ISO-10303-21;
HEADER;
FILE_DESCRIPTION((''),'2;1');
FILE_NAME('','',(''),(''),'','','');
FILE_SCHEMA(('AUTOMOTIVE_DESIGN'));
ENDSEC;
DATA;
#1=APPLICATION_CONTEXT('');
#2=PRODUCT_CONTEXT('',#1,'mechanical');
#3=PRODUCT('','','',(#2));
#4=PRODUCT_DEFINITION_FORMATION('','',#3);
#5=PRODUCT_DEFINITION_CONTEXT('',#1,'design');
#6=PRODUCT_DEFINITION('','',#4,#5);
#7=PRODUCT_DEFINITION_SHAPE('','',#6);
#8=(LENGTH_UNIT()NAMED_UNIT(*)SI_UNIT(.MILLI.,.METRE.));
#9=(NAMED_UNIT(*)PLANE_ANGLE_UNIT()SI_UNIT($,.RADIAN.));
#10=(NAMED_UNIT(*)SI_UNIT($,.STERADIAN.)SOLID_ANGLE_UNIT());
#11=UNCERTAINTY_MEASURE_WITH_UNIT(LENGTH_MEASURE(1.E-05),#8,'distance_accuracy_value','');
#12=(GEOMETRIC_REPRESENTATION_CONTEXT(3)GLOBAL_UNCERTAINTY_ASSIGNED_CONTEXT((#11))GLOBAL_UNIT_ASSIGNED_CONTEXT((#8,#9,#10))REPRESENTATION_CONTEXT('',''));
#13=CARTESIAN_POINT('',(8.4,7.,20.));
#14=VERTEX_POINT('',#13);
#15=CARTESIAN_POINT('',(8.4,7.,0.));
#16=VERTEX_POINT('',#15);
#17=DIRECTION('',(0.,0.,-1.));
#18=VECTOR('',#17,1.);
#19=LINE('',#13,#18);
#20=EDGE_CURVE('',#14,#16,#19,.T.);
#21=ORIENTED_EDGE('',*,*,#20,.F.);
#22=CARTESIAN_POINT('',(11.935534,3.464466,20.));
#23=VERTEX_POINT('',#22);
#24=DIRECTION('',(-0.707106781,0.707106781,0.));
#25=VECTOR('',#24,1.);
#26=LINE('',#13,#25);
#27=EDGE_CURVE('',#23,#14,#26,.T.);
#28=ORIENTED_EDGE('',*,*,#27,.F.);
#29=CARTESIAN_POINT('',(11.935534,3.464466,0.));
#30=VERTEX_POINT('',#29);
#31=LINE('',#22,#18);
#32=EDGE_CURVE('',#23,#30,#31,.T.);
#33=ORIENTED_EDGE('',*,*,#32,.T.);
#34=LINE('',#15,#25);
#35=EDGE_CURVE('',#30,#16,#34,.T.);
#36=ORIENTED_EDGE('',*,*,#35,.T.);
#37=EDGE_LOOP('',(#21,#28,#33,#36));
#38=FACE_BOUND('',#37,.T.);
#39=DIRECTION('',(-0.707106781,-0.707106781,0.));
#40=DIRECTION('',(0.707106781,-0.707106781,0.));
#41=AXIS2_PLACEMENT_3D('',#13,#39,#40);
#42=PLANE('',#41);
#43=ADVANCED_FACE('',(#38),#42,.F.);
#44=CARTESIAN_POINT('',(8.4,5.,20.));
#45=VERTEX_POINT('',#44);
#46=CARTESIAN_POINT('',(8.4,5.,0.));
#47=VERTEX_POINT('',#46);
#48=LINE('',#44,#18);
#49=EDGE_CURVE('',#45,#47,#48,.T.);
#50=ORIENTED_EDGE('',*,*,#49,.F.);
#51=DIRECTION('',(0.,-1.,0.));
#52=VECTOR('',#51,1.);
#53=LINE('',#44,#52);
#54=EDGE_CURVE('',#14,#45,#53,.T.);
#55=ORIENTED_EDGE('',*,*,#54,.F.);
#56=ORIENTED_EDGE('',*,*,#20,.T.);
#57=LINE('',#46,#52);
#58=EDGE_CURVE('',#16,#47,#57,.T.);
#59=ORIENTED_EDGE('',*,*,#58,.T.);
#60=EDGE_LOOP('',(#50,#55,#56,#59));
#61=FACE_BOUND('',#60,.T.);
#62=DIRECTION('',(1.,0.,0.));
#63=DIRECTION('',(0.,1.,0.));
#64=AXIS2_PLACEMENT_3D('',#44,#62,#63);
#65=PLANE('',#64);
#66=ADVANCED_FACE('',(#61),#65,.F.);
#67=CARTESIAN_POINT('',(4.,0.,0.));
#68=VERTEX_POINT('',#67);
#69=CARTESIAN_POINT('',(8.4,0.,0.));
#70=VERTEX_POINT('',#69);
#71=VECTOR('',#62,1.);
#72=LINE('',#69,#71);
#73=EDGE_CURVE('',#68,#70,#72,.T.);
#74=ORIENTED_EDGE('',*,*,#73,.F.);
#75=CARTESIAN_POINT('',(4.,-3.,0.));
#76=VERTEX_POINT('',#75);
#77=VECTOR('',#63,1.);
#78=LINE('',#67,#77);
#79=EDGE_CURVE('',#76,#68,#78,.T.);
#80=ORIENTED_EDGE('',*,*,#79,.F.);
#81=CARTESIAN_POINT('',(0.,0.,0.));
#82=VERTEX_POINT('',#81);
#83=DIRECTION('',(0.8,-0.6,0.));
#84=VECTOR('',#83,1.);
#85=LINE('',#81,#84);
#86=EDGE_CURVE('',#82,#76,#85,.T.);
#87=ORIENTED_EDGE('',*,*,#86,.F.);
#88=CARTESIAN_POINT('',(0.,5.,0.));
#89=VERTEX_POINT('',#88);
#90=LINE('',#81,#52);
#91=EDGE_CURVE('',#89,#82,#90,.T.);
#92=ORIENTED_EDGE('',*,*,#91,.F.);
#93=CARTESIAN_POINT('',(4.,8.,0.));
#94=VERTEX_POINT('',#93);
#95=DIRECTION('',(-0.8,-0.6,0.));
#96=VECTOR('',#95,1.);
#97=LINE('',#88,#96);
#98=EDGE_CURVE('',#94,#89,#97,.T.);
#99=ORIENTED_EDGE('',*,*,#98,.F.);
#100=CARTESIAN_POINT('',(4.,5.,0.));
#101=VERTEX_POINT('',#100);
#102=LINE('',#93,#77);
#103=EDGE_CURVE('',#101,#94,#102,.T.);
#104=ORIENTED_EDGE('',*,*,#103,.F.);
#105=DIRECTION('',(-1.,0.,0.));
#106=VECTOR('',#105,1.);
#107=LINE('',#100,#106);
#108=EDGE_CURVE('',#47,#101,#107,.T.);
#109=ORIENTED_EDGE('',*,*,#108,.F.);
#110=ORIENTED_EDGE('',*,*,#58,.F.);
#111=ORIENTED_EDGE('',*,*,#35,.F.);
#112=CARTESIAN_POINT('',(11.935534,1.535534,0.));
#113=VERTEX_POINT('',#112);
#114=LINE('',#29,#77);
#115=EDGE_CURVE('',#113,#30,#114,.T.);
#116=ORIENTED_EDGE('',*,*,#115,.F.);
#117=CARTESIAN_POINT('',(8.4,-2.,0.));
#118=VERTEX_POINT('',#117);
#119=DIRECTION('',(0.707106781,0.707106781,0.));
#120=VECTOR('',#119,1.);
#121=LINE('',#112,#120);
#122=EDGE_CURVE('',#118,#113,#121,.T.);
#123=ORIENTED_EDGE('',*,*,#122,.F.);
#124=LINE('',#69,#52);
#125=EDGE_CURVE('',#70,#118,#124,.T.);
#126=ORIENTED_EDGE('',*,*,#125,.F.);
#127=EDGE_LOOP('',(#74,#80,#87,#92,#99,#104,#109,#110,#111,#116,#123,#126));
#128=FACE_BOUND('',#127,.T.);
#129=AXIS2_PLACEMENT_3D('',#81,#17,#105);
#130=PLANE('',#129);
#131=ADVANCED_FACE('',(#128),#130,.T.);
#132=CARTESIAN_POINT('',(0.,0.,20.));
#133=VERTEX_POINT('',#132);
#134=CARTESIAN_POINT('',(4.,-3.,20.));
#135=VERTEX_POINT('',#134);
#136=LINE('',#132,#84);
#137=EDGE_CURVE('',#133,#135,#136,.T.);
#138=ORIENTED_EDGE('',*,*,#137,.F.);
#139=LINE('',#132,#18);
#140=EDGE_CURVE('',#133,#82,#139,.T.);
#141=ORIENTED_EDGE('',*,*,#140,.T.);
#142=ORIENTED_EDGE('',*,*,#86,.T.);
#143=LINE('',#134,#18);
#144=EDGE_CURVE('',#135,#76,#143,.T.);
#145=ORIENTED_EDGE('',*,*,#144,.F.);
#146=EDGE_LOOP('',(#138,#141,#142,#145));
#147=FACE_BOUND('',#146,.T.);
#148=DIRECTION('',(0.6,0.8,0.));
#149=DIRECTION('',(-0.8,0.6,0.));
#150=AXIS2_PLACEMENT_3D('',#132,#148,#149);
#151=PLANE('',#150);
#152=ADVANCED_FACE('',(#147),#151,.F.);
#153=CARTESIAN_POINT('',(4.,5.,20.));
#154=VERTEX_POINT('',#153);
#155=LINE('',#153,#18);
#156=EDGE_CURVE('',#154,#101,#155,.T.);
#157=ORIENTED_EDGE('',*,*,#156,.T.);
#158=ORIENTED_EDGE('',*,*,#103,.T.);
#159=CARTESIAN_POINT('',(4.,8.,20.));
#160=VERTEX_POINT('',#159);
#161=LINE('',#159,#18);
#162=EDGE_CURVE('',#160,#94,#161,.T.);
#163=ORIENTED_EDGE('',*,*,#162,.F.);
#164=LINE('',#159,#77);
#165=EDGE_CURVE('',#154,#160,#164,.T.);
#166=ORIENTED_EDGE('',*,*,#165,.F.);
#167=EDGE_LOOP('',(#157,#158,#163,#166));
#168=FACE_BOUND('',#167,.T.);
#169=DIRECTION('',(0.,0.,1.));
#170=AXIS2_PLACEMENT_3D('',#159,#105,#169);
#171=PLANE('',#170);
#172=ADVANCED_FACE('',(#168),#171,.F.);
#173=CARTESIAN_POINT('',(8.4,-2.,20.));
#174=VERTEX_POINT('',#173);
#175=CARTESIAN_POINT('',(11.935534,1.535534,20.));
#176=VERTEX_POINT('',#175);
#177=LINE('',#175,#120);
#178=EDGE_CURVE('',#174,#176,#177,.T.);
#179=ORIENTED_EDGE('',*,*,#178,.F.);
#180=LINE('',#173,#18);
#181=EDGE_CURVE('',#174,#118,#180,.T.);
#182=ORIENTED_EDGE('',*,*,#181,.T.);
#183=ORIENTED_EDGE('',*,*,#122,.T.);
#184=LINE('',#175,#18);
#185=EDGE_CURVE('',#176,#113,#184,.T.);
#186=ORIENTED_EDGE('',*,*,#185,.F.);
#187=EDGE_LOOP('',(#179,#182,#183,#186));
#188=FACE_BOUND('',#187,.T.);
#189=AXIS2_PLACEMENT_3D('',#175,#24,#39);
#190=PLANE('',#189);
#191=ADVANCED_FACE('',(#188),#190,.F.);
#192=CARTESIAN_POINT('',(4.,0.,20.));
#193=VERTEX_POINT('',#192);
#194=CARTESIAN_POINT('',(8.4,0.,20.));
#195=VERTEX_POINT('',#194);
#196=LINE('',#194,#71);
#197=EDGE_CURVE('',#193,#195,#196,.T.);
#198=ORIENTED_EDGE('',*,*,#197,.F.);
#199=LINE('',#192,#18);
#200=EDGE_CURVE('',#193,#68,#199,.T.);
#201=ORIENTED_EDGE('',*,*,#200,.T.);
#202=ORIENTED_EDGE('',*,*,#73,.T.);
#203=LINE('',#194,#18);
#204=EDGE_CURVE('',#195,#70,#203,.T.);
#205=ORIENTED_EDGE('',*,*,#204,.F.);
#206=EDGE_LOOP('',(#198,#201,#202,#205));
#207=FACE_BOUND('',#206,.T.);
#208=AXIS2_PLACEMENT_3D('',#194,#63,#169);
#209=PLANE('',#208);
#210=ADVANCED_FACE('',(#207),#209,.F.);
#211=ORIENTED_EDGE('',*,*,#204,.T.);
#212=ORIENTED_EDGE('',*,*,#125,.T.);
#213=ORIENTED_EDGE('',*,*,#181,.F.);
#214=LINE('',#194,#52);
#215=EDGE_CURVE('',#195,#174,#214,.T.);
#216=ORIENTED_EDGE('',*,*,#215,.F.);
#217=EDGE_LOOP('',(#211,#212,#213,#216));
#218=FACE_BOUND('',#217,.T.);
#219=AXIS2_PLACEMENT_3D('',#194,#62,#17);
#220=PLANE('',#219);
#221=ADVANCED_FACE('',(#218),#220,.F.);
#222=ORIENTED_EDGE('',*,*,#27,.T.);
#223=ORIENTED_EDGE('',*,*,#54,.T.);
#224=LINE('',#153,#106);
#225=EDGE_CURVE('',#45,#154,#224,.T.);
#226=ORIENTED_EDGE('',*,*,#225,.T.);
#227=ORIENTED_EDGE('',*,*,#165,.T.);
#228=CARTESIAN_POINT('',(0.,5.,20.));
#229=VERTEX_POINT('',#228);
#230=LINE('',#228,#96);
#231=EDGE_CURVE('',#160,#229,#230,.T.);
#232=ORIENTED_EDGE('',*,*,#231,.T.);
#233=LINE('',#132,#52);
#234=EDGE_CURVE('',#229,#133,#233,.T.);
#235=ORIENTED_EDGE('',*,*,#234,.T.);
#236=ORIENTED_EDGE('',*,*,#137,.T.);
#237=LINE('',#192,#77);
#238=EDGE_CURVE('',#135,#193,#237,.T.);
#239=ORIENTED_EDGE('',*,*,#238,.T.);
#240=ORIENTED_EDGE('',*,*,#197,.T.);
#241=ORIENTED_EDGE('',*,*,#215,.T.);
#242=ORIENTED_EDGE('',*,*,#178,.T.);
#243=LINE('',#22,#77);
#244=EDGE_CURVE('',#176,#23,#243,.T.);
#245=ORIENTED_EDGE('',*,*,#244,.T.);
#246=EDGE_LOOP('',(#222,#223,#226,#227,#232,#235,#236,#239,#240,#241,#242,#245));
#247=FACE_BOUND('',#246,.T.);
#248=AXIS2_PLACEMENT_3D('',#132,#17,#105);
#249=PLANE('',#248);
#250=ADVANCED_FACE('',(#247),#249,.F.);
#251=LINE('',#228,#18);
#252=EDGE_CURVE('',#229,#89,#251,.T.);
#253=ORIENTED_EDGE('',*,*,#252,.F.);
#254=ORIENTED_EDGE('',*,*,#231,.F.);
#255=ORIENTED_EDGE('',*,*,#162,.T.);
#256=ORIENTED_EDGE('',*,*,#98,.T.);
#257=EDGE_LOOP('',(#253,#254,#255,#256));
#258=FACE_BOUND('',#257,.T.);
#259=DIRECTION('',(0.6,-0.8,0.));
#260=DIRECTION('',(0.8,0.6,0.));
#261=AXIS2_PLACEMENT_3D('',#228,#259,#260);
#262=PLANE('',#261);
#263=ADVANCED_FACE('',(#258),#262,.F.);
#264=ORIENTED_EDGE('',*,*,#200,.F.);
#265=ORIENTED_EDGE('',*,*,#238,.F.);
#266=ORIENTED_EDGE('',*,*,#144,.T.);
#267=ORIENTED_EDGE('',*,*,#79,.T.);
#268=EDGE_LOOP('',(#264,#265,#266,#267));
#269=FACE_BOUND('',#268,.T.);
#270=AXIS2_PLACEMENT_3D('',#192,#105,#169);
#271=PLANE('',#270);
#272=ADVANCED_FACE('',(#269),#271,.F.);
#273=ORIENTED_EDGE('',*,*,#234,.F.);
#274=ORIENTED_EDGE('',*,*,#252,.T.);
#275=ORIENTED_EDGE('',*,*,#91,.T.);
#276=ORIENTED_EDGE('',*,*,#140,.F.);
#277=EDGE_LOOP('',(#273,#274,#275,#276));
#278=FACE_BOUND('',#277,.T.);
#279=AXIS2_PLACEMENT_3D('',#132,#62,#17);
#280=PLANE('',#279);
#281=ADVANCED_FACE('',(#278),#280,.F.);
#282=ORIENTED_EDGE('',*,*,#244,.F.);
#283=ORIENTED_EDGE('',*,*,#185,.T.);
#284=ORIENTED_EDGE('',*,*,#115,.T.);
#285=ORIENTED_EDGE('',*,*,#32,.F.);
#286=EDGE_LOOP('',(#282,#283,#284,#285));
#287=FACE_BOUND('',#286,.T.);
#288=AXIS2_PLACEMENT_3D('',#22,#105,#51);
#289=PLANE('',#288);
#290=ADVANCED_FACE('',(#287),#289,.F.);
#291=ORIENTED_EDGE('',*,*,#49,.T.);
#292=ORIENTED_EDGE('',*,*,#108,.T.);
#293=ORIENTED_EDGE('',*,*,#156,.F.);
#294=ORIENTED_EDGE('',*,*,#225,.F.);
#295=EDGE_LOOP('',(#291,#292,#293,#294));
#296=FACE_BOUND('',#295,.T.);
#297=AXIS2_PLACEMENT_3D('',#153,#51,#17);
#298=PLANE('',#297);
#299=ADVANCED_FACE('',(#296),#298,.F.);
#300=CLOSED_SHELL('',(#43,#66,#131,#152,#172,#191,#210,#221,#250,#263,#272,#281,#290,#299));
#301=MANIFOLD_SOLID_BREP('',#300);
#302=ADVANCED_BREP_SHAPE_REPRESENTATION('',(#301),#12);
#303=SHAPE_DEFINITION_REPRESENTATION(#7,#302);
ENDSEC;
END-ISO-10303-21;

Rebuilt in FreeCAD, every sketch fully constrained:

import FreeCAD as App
import Part
import Sketcher

doc = App.newDocument("Part")
body = doc.addObject("PartDesign::Body", "Body")

# Sketch on XY plane
sketch1 = body.newObject("Sketcher::SketchObject", "Sketch")
sketch1.AttachmentSupport = (doc.getObject("XY_Plane"), [""])
sketch1.MapMode = "FlatFace"
sketch1.addGeometry([
    Part.LineSegment(App.Vector(0, 5, 0), App.Vector(0, 0, 0)),  # 0
    Part.LineSegment(App.Vector(0, 0, 0), App.Vector(4, -3, 0)),  # 1
    Part.LineSegment(App.Vector(4, -3, 0), App.Vector(4, 0, 0)),  # 2
    Part.LineSegment(App.Vector(4, 0, 0), App.Vector(8.4, 0, 0)),  # 3
    Part.LineSegment(App.Vector(8.4, 0, 0), App.Vector(8.4, -2, 0)),  # 4
    Part.LineSegment(App.Vector(8.4, -2, 0), App.Vector(11.9, 1.5, 0)),  # 5
    Part.LineSegment(App.Vector(11.9, 1.5, 0), App.Vector(11.9, 3.5, 0)),  # 6
    Part.LineSegment(App.Vector(11.9, 3.5, 0), App.Vector(8.4, 7, 0)),  # 7
    Part.LineSegment(App.Vector(8.4, 7, 0), App.Vector(8.4, 5, 0)),  # 8
    Part.LineSegment(App.Vector(8.4, 5, 0), App.Vector(4, 5, 0)),  # 9
    Part.LineSegment(App.Vector(4, 5, 0), App.Vector(4, 8, 0)),  # 10
    Part.LineSegment(App.Vector(4, 8, 0), App.Vector(0, 5, 0)),  # 11
], False)
sketch1.addConstraint([
    Sketcher.Constraint("Coincident", 0, 2, 1, 1),
    Sketcher.Constraint("Coincident", 1, 2, 2, 1),
    Sketcher.Constraint("Coincident", 2, 2, 3, 1),
    Sketcher.Constraint("Coincident", 3, 2, 4, 1),
    Sketcher.Constraint("Coincident", 4, 2, 5, 1),
    Sketcher.Constraint("Coincident", 5, 2, 6, 1),
    Sketcher.Constraint("Coincident", 6, 2, 7, 1),
    Sketcher.Constraint("Coincident", 7, 2, 8, 1),
    Sketcher.Constraint("Coincident", 8, 2, 9, 1),
    Sketcher.Constraint("Coincident", 9, 2, 10, 1),
    Sketcher.Constraint("Coincident", 10, 2, 11, 1),
    Sketcher.Constraint("Coincident", 11, 2, 0, 1),
    Sketcher.Constraint("Vertical", 0),
    Sketcher.Constraint("Vertical", 2),
    Sketcher.Constraint("Horizontal", 3),
    Sketcher.Constraint("Vertical", 4),
    Sketcher.Constraint("Vertical", 6),
    Sketcher.Constraint("Vertical", 8),
    Sketcher.Constraint("Horizontal", 9),
    Sketcher.Constraint("Vertical", 10),
    Sketcher.Constraint("Coincident", 0, 2, -1, 1),
    Sketcher.Constraint("PointOnObject", 2, 2, -1),
    Sketcher.Constraint("Perpendicular", 5, 7),
    Sketcher.Constraint("Horizontal", 9, 2, 11, 2),
    Sketcher.Constraint("Vertical", 4, 2, 7, 2),
    Sketcher.Constraint("Vertical", 2, 2, 9, 2),
    Sketcher.Constraint("Equal", 4, 8),
    Sketcher.Constraint("Equal", 2, 10),
    Sketcher.Constraint("Equal", 1, 5),
    Sketcher.Constraint("Equal", 5, 7),
    Sketcher.Constraint("DistanceY", 0, 2, 0, 1, 5.0),
    Sketcher.Constraint("DistanceY", 2, 1, 2, 2, 3.0),
    Sketcher.Constraint("DistanceY", 4, 2, 4, 1, 2.0),
    Sketcher.Constraint("Distance", 1, 5.0),
    Sketcher.Constraint("DistanceX", 3, 1, 3, 2, 4.4),
])
pad1 = body.newObject("PartDesign::Pad", "Pad")
pad1.Profile = sketch1
pad1.Length = 20

doc.recompute()
